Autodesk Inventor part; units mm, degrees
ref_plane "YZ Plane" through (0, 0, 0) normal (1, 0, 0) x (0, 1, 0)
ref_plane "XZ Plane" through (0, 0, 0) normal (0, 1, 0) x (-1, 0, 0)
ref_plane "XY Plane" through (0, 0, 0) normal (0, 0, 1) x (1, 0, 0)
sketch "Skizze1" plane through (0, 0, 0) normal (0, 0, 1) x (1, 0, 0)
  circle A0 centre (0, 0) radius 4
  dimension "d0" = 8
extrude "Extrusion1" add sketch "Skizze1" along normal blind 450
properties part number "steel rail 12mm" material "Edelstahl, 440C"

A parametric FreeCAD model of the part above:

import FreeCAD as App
import Part
import Sketcher
from FreeCAD import Vector

doc = App.newDocument("Part")
body = doc.addObject("PartDesign::Body", "Body")

# Sketch on XY plane
sketch1 = doc.addObject("Sketcher::SketchObject", "Sketch")
body.addObject(sketch1)
sketch1.AttachmentSupport = (doc.XY_Plane, [""])
sketch1.MapMode = "FlatFace"
sketch1.addGeometry(Part.Circle(Vector(0, 0, 0), Vector(0, 0, 1), 4), False)
sketch1.addConstraint([
    Sketcher.Constraint("Coincident", 0, 3, -1, 1),
    Sketcher.Constraint("Diameter", 0, 8.0),
])
pad1 = doc.addObject("PartDesign::Pad", "Pad")
body.addObject(pad1)
pad1.Profile = sketch1
pad1.Length = 450

doc.recompute()
